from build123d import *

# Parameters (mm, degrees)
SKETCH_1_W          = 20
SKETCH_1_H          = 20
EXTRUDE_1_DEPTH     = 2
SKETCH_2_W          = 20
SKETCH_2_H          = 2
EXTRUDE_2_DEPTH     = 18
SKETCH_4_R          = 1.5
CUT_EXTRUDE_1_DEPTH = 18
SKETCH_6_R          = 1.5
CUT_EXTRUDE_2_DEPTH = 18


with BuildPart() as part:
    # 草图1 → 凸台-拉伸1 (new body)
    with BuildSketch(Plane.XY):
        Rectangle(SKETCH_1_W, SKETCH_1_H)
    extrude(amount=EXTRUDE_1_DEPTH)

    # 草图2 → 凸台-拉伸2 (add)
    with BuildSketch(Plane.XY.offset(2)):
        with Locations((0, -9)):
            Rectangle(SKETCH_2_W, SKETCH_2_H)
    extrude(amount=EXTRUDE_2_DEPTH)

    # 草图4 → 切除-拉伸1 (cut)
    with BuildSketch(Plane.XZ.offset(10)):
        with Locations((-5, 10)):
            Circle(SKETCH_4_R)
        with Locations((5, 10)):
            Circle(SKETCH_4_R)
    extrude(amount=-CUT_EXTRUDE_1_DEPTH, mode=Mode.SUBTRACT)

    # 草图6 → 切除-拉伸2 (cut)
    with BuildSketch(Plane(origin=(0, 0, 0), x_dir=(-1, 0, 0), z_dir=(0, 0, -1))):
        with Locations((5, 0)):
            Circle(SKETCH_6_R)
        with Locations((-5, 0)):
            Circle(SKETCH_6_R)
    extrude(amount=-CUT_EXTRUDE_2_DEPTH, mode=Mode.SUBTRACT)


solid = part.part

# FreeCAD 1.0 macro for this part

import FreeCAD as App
import Part
import Sketcher

V = App.Vector

doc = App.newDocument("Part")
body = doc.addObject("PartDesign::Body", "Body")

# Sketch on XY plane
sketch1 = body.newObject("Sketcher::SketchObject", "Sketch")
sketch1.AttachmentSupport = (doc.getObject("XY_Plane"), [""])
sketch1.MapMode = "FlatFace"
sketch1.addGeometry(Part.LineSegment(V(-10, 10, 0), V(-10, -10, 0)), False)
sketch1.addGeometry(Part.LineSegment(V(-10, -10, 0), V(10, -10, 0)), False)
sketch1.addGeometry(Part.LineSegment(V(10, -10, 0), V(10, 10, 0)), False)
sketch1.addGeometry(Part.LineSegment(V(10, 10, 0), V(-10, 10, 0)), False)
sketch1.addConstraint(Sketcher.Constraint("Coincident", 0, 2, 1, 1))
sketch1.addConstraint(Sketcher.Constraint("Coincident", 1, 2, 2, 1))
sketch1.addConstraint(Sketcher.Constraint("Coincident", 2, 2, 3, 1))
sketch1.addConstraint(Sketcher.Constraint("Coincident", 3, 2, 0, 1))
sketch1.addConstraint(Sketcher.Constraint("Vertical", 0))
sketch1.addConstraint(Sketcher.Constraint("Horizontal", 1))
sketch1.addConstraint(Sketcher.Constraint("Vertical", 2))
sketch1.addConstraint(Sketcher.Constraint("Horizontal", 3))
sketch1.addConstraint(Sketcher.Constraint("Symmetric", 0, 2, 2, 2, -1, 1))
sketch1.addConstraint(Sketcher.Constraint("Equal", 3, 0))
sketch1.addConstraint(Sketcher.Constraint("DistanceX", 1, 1, 1, 2, 20.0))
pad1 = body.newObject("PartDesign::Pad", "Pad")
pad1.Profile = sketch1
pad1.Length = 2

# Sketch on XY plane
sketch2 = body.newObject("Sketcher::SketchObject", "Sketch001")
sketch2.AttachmentSupport = (doc.getObject("XY_Plane"), [""])
sketch2.MapMode = "FlatFace"
sketch2.AttachmentOffset = App.Placement(V(0, 0, 2), App.Rotation())
sketch2.addGeometry(Part.LineSegment(V(-10, -8, 0), V(-10, -10, 0)), False)
sketch2.addGeometry(Part.LineSegment(V(-10, -10, 0), V(10, -10, 0)), False)
sketch2.addGeometry(Part.LineSegment(V(10, -10, 0), V(10, -8, 0)), False)
sketch2.addGeometry(Part.LineSegment(V(10, -8, 0), V(-10, -8, 0)), False)
sketch2.addConstraint(Sketcher.Constraint("Coincident", 0, 2, 1, 1))
sketch2.addConstraint(Sketcher.Constraint("Coincident", 1, 2, 2, 1))
sketch2.addConstraint(Sketcher.Constraint("Coincident", 2, 2, 3, 1))
sketch2.addConstraint(Sketcher.Constraint("Coincident", 3, 2, 0, 1))
sketch2.addConstraint(Sketcher.Constraint("Vertical", 0))
sketch2.addConstraint(Sketcher.Constraint("Horizontal", 1))
sketch2.addConstraint(Sketcher.Constraint("Vertical", 2))
sketch2.addConstraint(Sketcher.Constraint("Horizontal", 3))
sketch2.addConstraint(Sketcher.Constraint("DistanceX", 1, 1, 1, 2, 20.0))
sketch2.addConstraint(Sketcher.Constraint("DistanceY", 0, 2, 0, 1, 2.0))
sketch2.addConstraint(Sketcher.Constraint("DistanceX", 0, 2, -1, 1, 10.0))
sketch2.addConstraint(Sketcher.Constraint("DistanceY", 0, 2, -1, 1, 10.0))
pad2 = body.newObject("PartDesign::Pad", "Pad001")
pad2.Profile = sketch2
pad2.Length = 18

# Sketch on XZ plane
sketch3 = body.newObject("Sketcher::SketchObject", "Sketch002")
sketch3.AttachmentSupport = (doc.getObject("XZ_Plane"), [""])
sketch3.MapMode = "FlatFace"
sketch3.AttachmentOffset = App.Placement(V(0, 0, 10), App.Rotation())
sketch3.addGeometry(Part.Circle(V(-5, 10, 0), V(0, 0, 1), 1.5), False)
sketch3.addGeometry(Part.Circle(V(5, 10, 0), V(0, 0, 1), 1.5), False)
sketch3.addConstraint(Sketcher.Constraint("Equal", 0, 1))
sketch3.addConstraint(Sketcher.Constraint("Symmetric", 0, 3, 1, 3, -2))
sketch3.addConstraint(Sketcher.Constraint("Diameter", 0, 3.0))
sketch3.addConstraint(Sketcher.Constraint("DistanceX", 0, 3, -1, 1, 5.0))
sketch3.addConstraint(Sketcher.Constraint("DistanceY", -1, 1, 0, 3, 10.0))
pocket1 = body.newObject("PartDesign::Pocket", "Pocket")
pocket1.Profile = sketch3
pocket1.Length = 18

# Sketch on XY plane
sketch4 = body.newObject("Sketcher::SketchObject", "Sketch003")
sketch4.AttachmentSupport = (doc.getObject("XY_Plane"), [""])
sketch4.MapMode = "FlatFace"
sketch4.addGeometry(Part.Circle(V(-5, 0, 0), V(0, 0, 1), 1.5), False)
sketch4.addGeometry(Part.Circle(V(5, 0, 0), V(0, 0, 1), 1.5), False)
sketch4.addConstraint(Sketcher.Constraint("Equal", 0, 1))
sketch4.addConstraint(Sketcher.Constraint("Symmetric", 0, 3, 1, 3, -1, 1))
sketch4.addConstraint(Sketcher.Constraint("PointOnObject", 0, 3, -1))
sketch4.addConstraint(Sketcher.Constraint("Diameter", 0, 3.0))
sketch4.addConstraint(Sketcher.Constraint("DistanceX", 0, 3, -1, 1, 5.0))
pocket2 = body.newObject("PartDesign::Pocket", "Pocket001")
pocket2.Profile = sketch4
pocket2.Length = 18
pocket2.Reversed = True

doc.recompute()
